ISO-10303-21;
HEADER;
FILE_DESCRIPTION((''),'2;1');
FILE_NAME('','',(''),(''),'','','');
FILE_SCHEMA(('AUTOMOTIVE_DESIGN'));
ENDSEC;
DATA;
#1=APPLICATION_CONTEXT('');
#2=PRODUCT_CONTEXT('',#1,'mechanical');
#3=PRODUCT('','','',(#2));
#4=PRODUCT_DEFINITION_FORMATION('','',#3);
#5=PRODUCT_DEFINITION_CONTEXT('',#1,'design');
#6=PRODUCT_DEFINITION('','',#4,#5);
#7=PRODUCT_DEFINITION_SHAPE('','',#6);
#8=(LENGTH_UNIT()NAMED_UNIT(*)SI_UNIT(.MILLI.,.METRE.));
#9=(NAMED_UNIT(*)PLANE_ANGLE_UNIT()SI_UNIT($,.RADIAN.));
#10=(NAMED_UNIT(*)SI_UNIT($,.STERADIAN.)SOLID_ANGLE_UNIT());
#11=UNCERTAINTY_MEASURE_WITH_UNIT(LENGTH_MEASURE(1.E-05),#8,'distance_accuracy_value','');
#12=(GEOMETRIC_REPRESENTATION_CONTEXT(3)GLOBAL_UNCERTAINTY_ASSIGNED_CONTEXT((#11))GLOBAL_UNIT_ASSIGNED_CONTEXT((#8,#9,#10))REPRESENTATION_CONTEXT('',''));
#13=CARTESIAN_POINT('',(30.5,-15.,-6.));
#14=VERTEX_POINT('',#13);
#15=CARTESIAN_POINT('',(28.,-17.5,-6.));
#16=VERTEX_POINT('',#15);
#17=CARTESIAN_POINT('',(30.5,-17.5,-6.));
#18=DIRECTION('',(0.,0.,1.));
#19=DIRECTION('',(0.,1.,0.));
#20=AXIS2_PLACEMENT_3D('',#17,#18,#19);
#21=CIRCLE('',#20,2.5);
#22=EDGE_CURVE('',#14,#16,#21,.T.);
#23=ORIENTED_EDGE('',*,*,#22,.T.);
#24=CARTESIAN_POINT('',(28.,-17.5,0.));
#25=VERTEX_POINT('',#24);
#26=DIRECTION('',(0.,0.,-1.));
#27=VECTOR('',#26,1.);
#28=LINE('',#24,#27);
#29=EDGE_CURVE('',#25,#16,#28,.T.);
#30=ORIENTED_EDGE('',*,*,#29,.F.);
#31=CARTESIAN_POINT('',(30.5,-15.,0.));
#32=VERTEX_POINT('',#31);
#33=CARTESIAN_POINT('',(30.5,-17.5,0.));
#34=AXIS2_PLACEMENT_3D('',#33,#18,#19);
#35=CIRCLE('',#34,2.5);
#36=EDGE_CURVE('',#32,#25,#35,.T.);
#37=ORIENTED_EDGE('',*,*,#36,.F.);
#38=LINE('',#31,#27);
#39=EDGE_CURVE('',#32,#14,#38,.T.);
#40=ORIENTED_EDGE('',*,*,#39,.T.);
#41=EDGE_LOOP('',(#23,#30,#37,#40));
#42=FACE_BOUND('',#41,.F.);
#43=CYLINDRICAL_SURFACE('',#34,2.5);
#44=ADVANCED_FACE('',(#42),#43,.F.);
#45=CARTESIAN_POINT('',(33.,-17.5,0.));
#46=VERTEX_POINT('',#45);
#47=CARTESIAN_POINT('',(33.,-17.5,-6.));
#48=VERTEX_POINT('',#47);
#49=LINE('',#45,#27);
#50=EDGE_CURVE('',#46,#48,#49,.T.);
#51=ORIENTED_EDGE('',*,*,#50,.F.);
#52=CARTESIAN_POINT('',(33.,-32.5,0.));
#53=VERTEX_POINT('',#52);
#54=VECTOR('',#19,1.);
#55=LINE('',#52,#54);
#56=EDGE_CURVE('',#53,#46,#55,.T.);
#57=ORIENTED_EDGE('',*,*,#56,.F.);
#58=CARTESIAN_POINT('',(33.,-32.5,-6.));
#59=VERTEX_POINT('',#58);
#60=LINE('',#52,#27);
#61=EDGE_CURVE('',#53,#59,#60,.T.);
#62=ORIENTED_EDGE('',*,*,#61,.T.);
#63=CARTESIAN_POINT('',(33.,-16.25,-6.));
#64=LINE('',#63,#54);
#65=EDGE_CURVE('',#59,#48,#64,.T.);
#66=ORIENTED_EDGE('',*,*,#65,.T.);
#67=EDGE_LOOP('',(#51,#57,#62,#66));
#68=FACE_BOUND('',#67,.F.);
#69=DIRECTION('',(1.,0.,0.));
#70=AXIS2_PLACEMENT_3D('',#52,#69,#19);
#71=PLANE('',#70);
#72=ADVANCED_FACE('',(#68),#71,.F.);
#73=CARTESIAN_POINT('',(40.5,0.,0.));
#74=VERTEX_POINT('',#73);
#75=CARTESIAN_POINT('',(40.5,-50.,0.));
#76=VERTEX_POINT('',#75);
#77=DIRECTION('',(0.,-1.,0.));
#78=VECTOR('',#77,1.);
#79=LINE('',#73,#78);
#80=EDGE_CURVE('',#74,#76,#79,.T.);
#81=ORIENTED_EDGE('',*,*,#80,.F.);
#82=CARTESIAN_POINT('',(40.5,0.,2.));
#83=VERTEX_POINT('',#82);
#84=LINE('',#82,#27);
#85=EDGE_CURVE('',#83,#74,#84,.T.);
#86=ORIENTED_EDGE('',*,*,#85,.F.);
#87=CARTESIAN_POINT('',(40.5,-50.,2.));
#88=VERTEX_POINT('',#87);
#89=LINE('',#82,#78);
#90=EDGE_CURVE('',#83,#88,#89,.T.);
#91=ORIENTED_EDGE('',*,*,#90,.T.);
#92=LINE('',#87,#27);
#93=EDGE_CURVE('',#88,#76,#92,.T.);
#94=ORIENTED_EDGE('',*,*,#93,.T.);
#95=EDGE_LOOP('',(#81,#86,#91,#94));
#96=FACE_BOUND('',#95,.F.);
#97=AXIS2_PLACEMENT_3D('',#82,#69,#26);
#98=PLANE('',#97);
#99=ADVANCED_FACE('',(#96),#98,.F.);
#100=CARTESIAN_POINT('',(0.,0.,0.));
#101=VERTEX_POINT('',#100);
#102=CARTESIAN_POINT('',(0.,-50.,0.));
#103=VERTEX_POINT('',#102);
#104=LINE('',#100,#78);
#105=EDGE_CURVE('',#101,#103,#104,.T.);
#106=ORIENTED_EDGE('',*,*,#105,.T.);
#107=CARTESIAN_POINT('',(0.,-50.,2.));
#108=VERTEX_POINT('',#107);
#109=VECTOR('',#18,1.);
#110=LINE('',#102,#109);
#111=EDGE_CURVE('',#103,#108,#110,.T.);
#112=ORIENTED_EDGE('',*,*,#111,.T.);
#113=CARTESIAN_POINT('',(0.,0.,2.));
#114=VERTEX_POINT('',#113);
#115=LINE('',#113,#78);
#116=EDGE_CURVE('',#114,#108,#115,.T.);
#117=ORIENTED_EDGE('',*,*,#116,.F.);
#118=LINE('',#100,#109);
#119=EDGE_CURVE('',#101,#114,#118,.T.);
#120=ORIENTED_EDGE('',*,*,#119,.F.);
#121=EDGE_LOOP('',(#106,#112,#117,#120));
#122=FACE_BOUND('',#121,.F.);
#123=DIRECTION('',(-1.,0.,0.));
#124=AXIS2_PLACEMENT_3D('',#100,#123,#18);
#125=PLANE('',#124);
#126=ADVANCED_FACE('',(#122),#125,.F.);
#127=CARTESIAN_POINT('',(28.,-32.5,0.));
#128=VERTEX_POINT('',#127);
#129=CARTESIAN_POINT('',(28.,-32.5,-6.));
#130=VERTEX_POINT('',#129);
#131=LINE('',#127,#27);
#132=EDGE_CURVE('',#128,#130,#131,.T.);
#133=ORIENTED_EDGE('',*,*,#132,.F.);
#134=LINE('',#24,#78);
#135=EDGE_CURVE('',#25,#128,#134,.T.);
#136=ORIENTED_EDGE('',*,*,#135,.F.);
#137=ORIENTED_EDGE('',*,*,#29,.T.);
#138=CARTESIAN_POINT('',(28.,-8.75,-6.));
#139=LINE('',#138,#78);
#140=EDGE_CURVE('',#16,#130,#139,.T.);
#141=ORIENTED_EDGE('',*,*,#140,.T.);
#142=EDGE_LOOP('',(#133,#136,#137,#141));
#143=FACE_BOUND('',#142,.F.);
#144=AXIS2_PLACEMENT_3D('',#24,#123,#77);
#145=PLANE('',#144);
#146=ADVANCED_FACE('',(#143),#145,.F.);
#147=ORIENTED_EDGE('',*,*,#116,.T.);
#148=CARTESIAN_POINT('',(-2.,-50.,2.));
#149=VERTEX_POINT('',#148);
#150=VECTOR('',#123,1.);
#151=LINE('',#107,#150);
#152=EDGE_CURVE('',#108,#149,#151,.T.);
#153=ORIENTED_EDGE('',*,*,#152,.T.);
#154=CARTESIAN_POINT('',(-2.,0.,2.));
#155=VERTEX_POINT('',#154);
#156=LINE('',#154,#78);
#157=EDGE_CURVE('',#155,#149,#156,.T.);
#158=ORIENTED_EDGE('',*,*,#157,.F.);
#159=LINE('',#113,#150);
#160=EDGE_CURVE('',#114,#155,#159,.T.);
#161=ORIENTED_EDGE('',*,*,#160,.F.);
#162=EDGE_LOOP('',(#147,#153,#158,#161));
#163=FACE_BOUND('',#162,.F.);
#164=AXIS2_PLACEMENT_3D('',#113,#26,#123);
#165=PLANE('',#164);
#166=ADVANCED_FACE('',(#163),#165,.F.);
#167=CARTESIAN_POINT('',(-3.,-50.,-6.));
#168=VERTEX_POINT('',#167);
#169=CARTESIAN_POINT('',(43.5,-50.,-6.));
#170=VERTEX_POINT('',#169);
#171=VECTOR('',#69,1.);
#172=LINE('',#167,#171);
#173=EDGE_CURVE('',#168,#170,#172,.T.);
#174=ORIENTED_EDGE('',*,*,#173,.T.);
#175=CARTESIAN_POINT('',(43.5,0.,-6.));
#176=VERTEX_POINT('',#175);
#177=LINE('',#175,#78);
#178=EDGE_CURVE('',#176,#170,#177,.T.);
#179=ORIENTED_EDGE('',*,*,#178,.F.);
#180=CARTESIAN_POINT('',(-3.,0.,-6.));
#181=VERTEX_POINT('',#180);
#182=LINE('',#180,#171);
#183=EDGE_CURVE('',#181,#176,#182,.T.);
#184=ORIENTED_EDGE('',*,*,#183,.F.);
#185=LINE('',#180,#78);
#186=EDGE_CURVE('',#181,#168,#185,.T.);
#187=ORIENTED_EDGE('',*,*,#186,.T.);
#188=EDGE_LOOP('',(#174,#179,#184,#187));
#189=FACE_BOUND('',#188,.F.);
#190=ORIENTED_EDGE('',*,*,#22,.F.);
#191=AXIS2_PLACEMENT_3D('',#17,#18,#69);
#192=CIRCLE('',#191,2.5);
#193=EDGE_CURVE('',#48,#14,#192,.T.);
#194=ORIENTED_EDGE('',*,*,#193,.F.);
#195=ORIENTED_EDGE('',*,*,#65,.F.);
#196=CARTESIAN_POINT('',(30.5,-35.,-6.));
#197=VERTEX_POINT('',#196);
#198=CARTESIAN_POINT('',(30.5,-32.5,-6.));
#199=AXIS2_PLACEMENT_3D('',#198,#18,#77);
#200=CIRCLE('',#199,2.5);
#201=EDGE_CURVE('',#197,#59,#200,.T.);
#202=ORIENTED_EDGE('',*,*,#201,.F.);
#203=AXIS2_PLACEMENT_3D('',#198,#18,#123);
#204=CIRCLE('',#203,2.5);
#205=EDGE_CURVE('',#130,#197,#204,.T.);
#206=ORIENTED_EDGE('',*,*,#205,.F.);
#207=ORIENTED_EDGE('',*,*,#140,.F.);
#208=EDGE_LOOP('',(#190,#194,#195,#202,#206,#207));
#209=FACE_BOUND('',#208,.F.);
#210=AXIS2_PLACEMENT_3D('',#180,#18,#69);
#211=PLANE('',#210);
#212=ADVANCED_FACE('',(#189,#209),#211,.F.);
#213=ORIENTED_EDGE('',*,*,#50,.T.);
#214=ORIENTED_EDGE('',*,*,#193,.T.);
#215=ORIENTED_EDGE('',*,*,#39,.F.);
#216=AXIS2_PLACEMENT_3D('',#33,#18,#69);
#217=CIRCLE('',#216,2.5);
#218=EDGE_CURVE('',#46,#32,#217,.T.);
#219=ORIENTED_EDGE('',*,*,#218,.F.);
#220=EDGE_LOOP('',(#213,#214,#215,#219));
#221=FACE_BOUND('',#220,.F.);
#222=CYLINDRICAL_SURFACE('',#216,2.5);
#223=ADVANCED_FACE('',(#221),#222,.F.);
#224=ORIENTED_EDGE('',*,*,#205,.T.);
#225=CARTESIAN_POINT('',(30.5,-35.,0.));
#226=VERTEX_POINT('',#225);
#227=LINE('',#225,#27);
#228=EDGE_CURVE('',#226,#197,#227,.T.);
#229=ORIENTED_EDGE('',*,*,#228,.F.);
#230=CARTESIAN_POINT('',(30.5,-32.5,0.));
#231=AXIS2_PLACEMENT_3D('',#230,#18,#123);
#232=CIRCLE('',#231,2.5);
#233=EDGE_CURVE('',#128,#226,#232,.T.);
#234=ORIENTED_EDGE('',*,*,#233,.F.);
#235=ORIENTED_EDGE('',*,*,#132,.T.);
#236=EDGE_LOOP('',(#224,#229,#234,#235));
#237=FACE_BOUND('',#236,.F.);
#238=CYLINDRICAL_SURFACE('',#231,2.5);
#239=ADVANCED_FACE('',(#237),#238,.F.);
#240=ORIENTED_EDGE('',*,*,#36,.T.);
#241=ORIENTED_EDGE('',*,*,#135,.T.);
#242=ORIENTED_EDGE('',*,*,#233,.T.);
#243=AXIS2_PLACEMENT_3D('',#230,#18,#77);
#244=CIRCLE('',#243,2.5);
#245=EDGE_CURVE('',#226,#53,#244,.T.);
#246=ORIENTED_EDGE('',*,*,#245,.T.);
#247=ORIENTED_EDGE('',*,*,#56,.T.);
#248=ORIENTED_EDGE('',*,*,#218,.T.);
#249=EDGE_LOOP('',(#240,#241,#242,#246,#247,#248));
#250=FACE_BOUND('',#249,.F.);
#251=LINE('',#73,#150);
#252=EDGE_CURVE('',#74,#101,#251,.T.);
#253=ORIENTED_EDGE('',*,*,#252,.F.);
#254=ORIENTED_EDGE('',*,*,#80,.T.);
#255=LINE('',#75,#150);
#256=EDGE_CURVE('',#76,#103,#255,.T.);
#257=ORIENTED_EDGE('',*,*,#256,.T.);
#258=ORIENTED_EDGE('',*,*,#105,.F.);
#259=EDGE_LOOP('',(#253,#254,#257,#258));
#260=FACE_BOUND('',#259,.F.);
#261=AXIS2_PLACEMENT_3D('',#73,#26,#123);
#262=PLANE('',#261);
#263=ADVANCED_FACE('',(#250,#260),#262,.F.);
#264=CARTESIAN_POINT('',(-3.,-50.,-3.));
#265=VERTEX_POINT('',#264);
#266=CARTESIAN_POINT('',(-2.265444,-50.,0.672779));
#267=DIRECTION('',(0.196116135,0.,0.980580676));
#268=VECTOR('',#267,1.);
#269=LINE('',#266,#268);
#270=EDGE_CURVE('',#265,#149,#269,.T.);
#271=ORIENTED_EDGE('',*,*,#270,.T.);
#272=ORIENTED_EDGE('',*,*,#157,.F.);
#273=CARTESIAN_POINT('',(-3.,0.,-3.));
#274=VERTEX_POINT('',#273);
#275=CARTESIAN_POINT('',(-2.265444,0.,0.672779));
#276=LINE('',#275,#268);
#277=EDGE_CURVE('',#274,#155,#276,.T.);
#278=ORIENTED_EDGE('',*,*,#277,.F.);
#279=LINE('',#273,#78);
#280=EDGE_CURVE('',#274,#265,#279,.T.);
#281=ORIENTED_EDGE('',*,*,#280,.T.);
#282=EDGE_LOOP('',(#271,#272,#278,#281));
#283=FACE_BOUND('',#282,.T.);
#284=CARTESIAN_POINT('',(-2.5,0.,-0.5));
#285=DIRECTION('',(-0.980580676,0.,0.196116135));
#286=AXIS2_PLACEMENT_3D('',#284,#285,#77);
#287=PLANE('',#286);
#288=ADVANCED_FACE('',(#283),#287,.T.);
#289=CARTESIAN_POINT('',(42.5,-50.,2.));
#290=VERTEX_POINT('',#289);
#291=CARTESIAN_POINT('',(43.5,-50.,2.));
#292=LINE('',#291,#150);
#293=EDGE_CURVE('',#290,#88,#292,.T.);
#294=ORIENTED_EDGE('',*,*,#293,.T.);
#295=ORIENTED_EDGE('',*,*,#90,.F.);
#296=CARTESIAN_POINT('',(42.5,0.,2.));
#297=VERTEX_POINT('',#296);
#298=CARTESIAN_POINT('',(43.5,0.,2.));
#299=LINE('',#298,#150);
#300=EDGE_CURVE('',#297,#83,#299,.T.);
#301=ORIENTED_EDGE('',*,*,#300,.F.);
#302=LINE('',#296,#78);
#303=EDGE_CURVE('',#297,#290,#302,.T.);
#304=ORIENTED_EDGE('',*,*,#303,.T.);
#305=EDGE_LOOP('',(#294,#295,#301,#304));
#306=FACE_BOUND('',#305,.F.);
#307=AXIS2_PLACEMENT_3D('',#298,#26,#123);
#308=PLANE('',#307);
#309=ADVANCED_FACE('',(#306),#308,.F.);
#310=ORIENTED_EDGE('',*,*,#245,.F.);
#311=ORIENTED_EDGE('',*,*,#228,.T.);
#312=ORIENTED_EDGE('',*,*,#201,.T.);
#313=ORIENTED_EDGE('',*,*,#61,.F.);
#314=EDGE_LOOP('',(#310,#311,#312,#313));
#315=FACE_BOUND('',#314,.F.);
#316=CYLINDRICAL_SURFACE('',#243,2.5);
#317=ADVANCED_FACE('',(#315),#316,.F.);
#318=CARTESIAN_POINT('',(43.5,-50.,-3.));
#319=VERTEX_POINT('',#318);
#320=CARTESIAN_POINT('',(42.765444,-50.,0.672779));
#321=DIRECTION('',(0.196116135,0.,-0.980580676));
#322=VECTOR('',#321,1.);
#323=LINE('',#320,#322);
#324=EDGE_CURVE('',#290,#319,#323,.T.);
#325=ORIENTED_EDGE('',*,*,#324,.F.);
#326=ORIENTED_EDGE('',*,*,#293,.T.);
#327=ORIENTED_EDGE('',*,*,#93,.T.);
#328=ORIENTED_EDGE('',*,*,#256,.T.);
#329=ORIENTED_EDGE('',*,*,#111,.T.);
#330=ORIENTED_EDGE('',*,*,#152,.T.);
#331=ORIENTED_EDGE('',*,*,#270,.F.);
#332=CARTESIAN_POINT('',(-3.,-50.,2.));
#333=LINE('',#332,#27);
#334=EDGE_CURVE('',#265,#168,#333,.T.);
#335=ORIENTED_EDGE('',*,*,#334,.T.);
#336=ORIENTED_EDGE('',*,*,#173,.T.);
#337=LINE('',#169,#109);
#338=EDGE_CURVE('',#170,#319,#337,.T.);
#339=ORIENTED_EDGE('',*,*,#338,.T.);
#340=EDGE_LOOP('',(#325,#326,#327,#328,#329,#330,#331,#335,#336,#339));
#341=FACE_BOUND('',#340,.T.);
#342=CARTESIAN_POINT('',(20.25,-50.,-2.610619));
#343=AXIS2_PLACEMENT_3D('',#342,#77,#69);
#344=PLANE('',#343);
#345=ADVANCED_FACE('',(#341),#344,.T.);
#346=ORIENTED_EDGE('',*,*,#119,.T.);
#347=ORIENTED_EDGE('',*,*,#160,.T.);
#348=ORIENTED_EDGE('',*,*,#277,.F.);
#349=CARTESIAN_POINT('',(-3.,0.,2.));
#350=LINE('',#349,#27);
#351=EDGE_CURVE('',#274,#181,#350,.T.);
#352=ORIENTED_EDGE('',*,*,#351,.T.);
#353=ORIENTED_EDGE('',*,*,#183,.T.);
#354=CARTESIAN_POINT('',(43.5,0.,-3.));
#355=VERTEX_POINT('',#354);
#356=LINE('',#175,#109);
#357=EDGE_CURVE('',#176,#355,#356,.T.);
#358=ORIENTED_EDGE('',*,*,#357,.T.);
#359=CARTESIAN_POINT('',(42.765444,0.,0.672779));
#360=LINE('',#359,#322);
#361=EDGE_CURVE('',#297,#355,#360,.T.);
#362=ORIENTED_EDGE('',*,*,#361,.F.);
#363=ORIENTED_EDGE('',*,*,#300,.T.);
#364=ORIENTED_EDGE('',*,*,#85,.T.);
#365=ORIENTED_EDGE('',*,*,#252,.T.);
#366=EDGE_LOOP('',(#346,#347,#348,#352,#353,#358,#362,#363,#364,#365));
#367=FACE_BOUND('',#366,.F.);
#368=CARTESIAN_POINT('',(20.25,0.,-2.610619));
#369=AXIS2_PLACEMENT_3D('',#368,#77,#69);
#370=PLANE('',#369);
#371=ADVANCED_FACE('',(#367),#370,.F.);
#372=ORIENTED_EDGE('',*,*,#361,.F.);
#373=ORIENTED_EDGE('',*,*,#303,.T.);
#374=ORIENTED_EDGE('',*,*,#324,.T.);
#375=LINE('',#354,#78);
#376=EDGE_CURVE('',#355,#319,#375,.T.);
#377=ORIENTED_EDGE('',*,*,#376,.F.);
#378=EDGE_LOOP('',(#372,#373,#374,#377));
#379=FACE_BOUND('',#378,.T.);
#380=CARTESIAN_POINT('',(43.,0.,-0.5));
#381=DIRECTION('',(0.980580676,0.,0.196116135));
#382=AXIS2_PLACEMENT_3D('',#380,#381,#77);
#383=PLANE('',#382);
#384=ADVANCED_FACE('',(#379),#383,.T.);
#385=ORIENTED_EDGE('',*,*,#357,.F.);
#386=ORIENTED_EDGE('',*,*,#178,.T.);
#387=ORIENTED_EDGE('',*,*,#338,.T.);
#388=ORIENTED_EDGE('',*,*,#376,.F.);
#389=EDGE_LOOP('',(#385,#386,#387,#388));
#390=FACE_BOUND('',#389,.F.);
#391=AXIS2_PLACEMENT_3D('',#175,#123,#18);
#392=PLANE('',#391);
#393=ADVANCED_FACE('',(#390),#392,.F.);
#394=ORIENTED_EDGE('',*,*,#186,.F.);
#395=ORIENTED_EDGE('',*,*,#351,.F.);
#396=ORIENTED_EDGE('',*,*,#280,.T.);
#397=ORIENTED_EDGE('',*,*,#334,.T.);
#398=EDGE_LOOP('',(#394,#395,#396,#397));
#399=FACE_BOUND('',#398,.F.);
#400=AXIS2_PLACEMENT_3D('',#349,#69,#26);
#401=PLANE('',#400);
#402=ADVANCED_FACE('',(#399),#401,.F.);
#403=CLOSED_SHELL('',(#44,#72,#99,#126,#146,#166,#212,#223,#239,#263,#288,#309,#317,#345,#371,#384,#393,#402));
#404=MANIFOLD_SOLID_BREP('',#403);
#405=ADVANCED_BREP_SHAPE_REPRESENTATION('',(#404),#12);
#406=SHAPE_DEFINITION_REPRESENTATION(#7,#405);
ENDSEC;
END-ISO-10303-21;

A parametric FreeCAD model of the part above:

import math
import FreeCAD as App
import Part
import Sketcher


def edges_at(feature, points):
    """Names of the edges that pass closest to the given points."""
    edges = feature.Shape.Edges
    near = lambda p: min(range(len(edges)), key=lambda i: edges[i].distToShape(Part.Vertex(*p))[0])
    return sorted({f"Edge{near(p) + 1}" for p in points})


def add_polygon(sketch, points):
    """Adds a closed chain of lines whose ends are joined by coincident constraints."""
    first, n = sketch.GeometryCount, len(points)
    for a, b in zip(points, points[1:] + points[:1]):
        sketch.addGeometry(Part.LineSegment(App.Vector(*a, 0), App.Vector(*b, 0)), False)
    for i in range(n):
        sketch.addConstraint(Sketcher.Constraint("Coincident", first + i, 2, first + (i + 1) % n, 1))

doc = App.newDocument("Part")
params = doc.addObject("Spreadsheet::Sheet", "Params")
for row, (alias, value) in enumerate([
    ("sketch1_width", "3 mm"),
    ("sketch1_height", "2 mm"),
    ("sketch1_height2", "8 mm"),
    ("sketch1_width2", "40.5 mm"),
    ("pad1_length", "50 mm"),
    ("chamfer_size", "5 mm"),
    ("chamfer_size2", "1 mm"),
    ("chamfer2_size", "1 mm"),
    ("chamfer2_size2", "5 mm"),
    ("sketch2_radius", "2.5 mm"),
    ("sketch2_height", "15 mm"),
    ("pocket1_length", "25 mm"),
], start=1):
    params.set(f"A{row}", alias)
    params.set(f"B{row}", "=" + value)
    params.setAlias(f"B{row}", alias)

body = doc.addObject("PartDesign::Body", "Body")

# Sketch on XZ plane
sketch1 = body.newObject("Sketcher::SketchObject", "Sketch")
sketch1.AttachmentSupport = (doc.getObject("XZ_Plane"), [""])
sketch1.MapMode = "FlatFace"
add_polygon(sketch1, [(40.5, 0), (0, 0), (0, 2), (-3, 2), (-3, -6), (43.5, -6), (43.5, 2), (40.5, 2)])  # lines 0-7
sketch1.addConstraint(Sketcher.Constraint("Horizontal", 0))
sketch1.addConstraint(Sketcher.Constraint("Vertical", 1))
sketch1.addConstraint(Sketcher.Constraint("Horizontal", 2))
sketch1.addConstraint(Sketcher.Constraint("Vertical", 3))
sketch1.addConstraint(Sketcher.Constraint("Horizontal", 4))
sketch1.addConstraint(Sketcher.Constraint("Vertical", 5))
sketch1.addConstraint(Sketcher.Constraint("Horizontal", 6))
sketch1.addConstraint(Sketcher.Constraint("Vertical", 7))
sketch1.addConstraint(Sketcher.Constraint("Coincident", 0, 2, -1, 1))
sketch1.addConstraint(Sketcher.Constraint("Horizontal", 2, 2, 5, 2))
sketch1.addConstraint(Sketcher.Constraint("Equal", 2, 6))
sketch1.addConstraint(Sketcher.Constraint("DistanceX", 2, 2, 2, 1, 3.0))
sketch1.addConstraint(Sketcher.Constraint("DistanceY", 1, 1, 1, 2, 2.0))
sketch1.addConstraint(Sketcher.Constraint("DistanceY", 3, 2, 3, 1, 8.0))
sketch1.addConstraint(Sketcher.Constraint("DistanceX", 0, 2, 0, 1, 40.5))
sketch1.setExpression("Constraints[19]", "Params.sketch1_width")
sketch1.setExpression("Constraints[20]", "Params.sketch1_height")
sketch1.setExpression("Constraints[21]", "Params.sketch1_height2")
sketch1.setExpression("Constraints[22]", "Params.sketch1_width2")
pad1 = body.newObject("PartDesign::Pad", "Pad")
pad1.Profile = sketch1
pad1.setExpression("Length", "Params.pad1_length")
doc.recompute()

chamfer = body.newObject("PartDesign::Chamfer", "Chamfer")
chamfer.Base = (pad1, edges_at(pad1, [(-3, -25, 2)]))
chamfer.ChamferType = "Two distances"
chamfer.setExpression("Size", "Params.chamfer_size")
chamfer.setExpression("Size2", "Params.chamfer_size2")
chamfer.FlipDirection = True
doc.recompute()

chamfer2 = body.newObject("PartDesign::Chamfer", "Chamfer001")
chamfer2.Base = (chamfer, edges_at(chamfer, [(43.5, -25, 2)]))
chamfer2.ChamferType = "Two distances"
chamfer2.setExpression("Size", "Params.chamfer2_size")
chamfer2.setExpression("Size2", "Params.chamfer2_size2")
chamfer2.FlipDirection = True

# Sketch on XY plane
sketch2 = body.newObject("Sketcher::SketchObject", "Sketch001")
sketch2.AttachmentSupport = (doc.getObject("XY_Plane"), [""])
sketch2.MapMode = "FlatFace"
sketch2.addGeometry(Part.ArcOfCircle(Part.Circle(App.Vector(30.5, -32.5, 0), App.Vector(0, 0, 1), 2.5), math.radians(-90), math.radians(0)), False)
sketch2.addGeometry(Part.LineSegment(App.Vector(33, -32.5, 0), App.Vector(33, -17.5, 0)), False)
sketch2.addGeometry(Part.ArcOfCircle(Part.Circle(App.Vector(30.5, -17.5, 0), App.Vector(0, 0, 1), 2.5), math.radians(0), math.radians(90)), False)
sketch2.addGeometry(Part.ArcOfCircle(Part.Circle(App.Vector(30.5, -17.5, 0), App.Vector(0, 0, 1), 2.5), math.radians(90), math.radians(180)), False)
sketch2.addGeometry(Part.LineSegment(App.Vector(28, -17.5, 0), App.Vector(28, -32.5, 0)), False)
sketch2.addGeometry(Part.ArcOfCircle(Part.Circle(App.Vector(30.5, -32.5, 0), App.Vector(0, 0, 1), 2.5), math.radians(180), math.radians(270)), False)
sketch2.addConstraint(Sketcher.Constraint("Tangent", 0, 2, 1, 1))
sketch2.addConstraint(Sketcher.Constraint("Tangent", 1, 2, 2, 1))
sketch2.addConstraint(Sketcher.Constraint("Tangent", 2, 2, 3, 1))
sketch2.addConstraint(Sketcher.Constraint("Tangent", 3, 2, 4, 1))
sketch2.addConstraint(Sketcher.Constraint("Tangent", 4, 2, 5, 1))
sketch2.addConstraint(Sketcher.Constraint("Tangent", 5, 2, 0, 1))
sketch2.addConstraint(Sketcher.Constraint("Vertical", 1))
sketch2.addConstraint(Sketcher.Constraint("Vertical", 4))
sketch2.addConstraint(Sketcher.Constraint("Equal", 0, 2))
sketch2.addConstraint(Sketcher.Constraint("Equal", 2, 3))
sketch2.addConstraint(Sketcher.Constraint("Vertical", 5, 3, 2, 2))
sketch2.addConstraint(Sketcher.Constraint("Vertical", 2, 2, 5, 2))
sketch2.addConstraint(Sketcher.Constraint("Radius", 0, 2.5))
sketch2.addConstraint(Sketcher.Constraint("DistanceY", 1, 1, 1, 2, 15.0))
sketch2.addConstraint(Sketcher.Constraint("DistanceX", -1, 1, 0, 2, 33.0))
sketch2.addConstraint(Sketcher.Constraint("DistanceY", 2, 2, -1, 1, 15.0))
sketch2.setExpression("Constraints[12]", "Params.sketch2_radius")
sketch2.setExpression("Constraints[13]", "Params.sketch2_height")
pocket1 = body.newObject("PartDesign::Pocket", "Pocket")
pocket1.Profile = sketch2
pocket1.setExpression("Length", "Params.pocket1_length")

doc.recompute()
